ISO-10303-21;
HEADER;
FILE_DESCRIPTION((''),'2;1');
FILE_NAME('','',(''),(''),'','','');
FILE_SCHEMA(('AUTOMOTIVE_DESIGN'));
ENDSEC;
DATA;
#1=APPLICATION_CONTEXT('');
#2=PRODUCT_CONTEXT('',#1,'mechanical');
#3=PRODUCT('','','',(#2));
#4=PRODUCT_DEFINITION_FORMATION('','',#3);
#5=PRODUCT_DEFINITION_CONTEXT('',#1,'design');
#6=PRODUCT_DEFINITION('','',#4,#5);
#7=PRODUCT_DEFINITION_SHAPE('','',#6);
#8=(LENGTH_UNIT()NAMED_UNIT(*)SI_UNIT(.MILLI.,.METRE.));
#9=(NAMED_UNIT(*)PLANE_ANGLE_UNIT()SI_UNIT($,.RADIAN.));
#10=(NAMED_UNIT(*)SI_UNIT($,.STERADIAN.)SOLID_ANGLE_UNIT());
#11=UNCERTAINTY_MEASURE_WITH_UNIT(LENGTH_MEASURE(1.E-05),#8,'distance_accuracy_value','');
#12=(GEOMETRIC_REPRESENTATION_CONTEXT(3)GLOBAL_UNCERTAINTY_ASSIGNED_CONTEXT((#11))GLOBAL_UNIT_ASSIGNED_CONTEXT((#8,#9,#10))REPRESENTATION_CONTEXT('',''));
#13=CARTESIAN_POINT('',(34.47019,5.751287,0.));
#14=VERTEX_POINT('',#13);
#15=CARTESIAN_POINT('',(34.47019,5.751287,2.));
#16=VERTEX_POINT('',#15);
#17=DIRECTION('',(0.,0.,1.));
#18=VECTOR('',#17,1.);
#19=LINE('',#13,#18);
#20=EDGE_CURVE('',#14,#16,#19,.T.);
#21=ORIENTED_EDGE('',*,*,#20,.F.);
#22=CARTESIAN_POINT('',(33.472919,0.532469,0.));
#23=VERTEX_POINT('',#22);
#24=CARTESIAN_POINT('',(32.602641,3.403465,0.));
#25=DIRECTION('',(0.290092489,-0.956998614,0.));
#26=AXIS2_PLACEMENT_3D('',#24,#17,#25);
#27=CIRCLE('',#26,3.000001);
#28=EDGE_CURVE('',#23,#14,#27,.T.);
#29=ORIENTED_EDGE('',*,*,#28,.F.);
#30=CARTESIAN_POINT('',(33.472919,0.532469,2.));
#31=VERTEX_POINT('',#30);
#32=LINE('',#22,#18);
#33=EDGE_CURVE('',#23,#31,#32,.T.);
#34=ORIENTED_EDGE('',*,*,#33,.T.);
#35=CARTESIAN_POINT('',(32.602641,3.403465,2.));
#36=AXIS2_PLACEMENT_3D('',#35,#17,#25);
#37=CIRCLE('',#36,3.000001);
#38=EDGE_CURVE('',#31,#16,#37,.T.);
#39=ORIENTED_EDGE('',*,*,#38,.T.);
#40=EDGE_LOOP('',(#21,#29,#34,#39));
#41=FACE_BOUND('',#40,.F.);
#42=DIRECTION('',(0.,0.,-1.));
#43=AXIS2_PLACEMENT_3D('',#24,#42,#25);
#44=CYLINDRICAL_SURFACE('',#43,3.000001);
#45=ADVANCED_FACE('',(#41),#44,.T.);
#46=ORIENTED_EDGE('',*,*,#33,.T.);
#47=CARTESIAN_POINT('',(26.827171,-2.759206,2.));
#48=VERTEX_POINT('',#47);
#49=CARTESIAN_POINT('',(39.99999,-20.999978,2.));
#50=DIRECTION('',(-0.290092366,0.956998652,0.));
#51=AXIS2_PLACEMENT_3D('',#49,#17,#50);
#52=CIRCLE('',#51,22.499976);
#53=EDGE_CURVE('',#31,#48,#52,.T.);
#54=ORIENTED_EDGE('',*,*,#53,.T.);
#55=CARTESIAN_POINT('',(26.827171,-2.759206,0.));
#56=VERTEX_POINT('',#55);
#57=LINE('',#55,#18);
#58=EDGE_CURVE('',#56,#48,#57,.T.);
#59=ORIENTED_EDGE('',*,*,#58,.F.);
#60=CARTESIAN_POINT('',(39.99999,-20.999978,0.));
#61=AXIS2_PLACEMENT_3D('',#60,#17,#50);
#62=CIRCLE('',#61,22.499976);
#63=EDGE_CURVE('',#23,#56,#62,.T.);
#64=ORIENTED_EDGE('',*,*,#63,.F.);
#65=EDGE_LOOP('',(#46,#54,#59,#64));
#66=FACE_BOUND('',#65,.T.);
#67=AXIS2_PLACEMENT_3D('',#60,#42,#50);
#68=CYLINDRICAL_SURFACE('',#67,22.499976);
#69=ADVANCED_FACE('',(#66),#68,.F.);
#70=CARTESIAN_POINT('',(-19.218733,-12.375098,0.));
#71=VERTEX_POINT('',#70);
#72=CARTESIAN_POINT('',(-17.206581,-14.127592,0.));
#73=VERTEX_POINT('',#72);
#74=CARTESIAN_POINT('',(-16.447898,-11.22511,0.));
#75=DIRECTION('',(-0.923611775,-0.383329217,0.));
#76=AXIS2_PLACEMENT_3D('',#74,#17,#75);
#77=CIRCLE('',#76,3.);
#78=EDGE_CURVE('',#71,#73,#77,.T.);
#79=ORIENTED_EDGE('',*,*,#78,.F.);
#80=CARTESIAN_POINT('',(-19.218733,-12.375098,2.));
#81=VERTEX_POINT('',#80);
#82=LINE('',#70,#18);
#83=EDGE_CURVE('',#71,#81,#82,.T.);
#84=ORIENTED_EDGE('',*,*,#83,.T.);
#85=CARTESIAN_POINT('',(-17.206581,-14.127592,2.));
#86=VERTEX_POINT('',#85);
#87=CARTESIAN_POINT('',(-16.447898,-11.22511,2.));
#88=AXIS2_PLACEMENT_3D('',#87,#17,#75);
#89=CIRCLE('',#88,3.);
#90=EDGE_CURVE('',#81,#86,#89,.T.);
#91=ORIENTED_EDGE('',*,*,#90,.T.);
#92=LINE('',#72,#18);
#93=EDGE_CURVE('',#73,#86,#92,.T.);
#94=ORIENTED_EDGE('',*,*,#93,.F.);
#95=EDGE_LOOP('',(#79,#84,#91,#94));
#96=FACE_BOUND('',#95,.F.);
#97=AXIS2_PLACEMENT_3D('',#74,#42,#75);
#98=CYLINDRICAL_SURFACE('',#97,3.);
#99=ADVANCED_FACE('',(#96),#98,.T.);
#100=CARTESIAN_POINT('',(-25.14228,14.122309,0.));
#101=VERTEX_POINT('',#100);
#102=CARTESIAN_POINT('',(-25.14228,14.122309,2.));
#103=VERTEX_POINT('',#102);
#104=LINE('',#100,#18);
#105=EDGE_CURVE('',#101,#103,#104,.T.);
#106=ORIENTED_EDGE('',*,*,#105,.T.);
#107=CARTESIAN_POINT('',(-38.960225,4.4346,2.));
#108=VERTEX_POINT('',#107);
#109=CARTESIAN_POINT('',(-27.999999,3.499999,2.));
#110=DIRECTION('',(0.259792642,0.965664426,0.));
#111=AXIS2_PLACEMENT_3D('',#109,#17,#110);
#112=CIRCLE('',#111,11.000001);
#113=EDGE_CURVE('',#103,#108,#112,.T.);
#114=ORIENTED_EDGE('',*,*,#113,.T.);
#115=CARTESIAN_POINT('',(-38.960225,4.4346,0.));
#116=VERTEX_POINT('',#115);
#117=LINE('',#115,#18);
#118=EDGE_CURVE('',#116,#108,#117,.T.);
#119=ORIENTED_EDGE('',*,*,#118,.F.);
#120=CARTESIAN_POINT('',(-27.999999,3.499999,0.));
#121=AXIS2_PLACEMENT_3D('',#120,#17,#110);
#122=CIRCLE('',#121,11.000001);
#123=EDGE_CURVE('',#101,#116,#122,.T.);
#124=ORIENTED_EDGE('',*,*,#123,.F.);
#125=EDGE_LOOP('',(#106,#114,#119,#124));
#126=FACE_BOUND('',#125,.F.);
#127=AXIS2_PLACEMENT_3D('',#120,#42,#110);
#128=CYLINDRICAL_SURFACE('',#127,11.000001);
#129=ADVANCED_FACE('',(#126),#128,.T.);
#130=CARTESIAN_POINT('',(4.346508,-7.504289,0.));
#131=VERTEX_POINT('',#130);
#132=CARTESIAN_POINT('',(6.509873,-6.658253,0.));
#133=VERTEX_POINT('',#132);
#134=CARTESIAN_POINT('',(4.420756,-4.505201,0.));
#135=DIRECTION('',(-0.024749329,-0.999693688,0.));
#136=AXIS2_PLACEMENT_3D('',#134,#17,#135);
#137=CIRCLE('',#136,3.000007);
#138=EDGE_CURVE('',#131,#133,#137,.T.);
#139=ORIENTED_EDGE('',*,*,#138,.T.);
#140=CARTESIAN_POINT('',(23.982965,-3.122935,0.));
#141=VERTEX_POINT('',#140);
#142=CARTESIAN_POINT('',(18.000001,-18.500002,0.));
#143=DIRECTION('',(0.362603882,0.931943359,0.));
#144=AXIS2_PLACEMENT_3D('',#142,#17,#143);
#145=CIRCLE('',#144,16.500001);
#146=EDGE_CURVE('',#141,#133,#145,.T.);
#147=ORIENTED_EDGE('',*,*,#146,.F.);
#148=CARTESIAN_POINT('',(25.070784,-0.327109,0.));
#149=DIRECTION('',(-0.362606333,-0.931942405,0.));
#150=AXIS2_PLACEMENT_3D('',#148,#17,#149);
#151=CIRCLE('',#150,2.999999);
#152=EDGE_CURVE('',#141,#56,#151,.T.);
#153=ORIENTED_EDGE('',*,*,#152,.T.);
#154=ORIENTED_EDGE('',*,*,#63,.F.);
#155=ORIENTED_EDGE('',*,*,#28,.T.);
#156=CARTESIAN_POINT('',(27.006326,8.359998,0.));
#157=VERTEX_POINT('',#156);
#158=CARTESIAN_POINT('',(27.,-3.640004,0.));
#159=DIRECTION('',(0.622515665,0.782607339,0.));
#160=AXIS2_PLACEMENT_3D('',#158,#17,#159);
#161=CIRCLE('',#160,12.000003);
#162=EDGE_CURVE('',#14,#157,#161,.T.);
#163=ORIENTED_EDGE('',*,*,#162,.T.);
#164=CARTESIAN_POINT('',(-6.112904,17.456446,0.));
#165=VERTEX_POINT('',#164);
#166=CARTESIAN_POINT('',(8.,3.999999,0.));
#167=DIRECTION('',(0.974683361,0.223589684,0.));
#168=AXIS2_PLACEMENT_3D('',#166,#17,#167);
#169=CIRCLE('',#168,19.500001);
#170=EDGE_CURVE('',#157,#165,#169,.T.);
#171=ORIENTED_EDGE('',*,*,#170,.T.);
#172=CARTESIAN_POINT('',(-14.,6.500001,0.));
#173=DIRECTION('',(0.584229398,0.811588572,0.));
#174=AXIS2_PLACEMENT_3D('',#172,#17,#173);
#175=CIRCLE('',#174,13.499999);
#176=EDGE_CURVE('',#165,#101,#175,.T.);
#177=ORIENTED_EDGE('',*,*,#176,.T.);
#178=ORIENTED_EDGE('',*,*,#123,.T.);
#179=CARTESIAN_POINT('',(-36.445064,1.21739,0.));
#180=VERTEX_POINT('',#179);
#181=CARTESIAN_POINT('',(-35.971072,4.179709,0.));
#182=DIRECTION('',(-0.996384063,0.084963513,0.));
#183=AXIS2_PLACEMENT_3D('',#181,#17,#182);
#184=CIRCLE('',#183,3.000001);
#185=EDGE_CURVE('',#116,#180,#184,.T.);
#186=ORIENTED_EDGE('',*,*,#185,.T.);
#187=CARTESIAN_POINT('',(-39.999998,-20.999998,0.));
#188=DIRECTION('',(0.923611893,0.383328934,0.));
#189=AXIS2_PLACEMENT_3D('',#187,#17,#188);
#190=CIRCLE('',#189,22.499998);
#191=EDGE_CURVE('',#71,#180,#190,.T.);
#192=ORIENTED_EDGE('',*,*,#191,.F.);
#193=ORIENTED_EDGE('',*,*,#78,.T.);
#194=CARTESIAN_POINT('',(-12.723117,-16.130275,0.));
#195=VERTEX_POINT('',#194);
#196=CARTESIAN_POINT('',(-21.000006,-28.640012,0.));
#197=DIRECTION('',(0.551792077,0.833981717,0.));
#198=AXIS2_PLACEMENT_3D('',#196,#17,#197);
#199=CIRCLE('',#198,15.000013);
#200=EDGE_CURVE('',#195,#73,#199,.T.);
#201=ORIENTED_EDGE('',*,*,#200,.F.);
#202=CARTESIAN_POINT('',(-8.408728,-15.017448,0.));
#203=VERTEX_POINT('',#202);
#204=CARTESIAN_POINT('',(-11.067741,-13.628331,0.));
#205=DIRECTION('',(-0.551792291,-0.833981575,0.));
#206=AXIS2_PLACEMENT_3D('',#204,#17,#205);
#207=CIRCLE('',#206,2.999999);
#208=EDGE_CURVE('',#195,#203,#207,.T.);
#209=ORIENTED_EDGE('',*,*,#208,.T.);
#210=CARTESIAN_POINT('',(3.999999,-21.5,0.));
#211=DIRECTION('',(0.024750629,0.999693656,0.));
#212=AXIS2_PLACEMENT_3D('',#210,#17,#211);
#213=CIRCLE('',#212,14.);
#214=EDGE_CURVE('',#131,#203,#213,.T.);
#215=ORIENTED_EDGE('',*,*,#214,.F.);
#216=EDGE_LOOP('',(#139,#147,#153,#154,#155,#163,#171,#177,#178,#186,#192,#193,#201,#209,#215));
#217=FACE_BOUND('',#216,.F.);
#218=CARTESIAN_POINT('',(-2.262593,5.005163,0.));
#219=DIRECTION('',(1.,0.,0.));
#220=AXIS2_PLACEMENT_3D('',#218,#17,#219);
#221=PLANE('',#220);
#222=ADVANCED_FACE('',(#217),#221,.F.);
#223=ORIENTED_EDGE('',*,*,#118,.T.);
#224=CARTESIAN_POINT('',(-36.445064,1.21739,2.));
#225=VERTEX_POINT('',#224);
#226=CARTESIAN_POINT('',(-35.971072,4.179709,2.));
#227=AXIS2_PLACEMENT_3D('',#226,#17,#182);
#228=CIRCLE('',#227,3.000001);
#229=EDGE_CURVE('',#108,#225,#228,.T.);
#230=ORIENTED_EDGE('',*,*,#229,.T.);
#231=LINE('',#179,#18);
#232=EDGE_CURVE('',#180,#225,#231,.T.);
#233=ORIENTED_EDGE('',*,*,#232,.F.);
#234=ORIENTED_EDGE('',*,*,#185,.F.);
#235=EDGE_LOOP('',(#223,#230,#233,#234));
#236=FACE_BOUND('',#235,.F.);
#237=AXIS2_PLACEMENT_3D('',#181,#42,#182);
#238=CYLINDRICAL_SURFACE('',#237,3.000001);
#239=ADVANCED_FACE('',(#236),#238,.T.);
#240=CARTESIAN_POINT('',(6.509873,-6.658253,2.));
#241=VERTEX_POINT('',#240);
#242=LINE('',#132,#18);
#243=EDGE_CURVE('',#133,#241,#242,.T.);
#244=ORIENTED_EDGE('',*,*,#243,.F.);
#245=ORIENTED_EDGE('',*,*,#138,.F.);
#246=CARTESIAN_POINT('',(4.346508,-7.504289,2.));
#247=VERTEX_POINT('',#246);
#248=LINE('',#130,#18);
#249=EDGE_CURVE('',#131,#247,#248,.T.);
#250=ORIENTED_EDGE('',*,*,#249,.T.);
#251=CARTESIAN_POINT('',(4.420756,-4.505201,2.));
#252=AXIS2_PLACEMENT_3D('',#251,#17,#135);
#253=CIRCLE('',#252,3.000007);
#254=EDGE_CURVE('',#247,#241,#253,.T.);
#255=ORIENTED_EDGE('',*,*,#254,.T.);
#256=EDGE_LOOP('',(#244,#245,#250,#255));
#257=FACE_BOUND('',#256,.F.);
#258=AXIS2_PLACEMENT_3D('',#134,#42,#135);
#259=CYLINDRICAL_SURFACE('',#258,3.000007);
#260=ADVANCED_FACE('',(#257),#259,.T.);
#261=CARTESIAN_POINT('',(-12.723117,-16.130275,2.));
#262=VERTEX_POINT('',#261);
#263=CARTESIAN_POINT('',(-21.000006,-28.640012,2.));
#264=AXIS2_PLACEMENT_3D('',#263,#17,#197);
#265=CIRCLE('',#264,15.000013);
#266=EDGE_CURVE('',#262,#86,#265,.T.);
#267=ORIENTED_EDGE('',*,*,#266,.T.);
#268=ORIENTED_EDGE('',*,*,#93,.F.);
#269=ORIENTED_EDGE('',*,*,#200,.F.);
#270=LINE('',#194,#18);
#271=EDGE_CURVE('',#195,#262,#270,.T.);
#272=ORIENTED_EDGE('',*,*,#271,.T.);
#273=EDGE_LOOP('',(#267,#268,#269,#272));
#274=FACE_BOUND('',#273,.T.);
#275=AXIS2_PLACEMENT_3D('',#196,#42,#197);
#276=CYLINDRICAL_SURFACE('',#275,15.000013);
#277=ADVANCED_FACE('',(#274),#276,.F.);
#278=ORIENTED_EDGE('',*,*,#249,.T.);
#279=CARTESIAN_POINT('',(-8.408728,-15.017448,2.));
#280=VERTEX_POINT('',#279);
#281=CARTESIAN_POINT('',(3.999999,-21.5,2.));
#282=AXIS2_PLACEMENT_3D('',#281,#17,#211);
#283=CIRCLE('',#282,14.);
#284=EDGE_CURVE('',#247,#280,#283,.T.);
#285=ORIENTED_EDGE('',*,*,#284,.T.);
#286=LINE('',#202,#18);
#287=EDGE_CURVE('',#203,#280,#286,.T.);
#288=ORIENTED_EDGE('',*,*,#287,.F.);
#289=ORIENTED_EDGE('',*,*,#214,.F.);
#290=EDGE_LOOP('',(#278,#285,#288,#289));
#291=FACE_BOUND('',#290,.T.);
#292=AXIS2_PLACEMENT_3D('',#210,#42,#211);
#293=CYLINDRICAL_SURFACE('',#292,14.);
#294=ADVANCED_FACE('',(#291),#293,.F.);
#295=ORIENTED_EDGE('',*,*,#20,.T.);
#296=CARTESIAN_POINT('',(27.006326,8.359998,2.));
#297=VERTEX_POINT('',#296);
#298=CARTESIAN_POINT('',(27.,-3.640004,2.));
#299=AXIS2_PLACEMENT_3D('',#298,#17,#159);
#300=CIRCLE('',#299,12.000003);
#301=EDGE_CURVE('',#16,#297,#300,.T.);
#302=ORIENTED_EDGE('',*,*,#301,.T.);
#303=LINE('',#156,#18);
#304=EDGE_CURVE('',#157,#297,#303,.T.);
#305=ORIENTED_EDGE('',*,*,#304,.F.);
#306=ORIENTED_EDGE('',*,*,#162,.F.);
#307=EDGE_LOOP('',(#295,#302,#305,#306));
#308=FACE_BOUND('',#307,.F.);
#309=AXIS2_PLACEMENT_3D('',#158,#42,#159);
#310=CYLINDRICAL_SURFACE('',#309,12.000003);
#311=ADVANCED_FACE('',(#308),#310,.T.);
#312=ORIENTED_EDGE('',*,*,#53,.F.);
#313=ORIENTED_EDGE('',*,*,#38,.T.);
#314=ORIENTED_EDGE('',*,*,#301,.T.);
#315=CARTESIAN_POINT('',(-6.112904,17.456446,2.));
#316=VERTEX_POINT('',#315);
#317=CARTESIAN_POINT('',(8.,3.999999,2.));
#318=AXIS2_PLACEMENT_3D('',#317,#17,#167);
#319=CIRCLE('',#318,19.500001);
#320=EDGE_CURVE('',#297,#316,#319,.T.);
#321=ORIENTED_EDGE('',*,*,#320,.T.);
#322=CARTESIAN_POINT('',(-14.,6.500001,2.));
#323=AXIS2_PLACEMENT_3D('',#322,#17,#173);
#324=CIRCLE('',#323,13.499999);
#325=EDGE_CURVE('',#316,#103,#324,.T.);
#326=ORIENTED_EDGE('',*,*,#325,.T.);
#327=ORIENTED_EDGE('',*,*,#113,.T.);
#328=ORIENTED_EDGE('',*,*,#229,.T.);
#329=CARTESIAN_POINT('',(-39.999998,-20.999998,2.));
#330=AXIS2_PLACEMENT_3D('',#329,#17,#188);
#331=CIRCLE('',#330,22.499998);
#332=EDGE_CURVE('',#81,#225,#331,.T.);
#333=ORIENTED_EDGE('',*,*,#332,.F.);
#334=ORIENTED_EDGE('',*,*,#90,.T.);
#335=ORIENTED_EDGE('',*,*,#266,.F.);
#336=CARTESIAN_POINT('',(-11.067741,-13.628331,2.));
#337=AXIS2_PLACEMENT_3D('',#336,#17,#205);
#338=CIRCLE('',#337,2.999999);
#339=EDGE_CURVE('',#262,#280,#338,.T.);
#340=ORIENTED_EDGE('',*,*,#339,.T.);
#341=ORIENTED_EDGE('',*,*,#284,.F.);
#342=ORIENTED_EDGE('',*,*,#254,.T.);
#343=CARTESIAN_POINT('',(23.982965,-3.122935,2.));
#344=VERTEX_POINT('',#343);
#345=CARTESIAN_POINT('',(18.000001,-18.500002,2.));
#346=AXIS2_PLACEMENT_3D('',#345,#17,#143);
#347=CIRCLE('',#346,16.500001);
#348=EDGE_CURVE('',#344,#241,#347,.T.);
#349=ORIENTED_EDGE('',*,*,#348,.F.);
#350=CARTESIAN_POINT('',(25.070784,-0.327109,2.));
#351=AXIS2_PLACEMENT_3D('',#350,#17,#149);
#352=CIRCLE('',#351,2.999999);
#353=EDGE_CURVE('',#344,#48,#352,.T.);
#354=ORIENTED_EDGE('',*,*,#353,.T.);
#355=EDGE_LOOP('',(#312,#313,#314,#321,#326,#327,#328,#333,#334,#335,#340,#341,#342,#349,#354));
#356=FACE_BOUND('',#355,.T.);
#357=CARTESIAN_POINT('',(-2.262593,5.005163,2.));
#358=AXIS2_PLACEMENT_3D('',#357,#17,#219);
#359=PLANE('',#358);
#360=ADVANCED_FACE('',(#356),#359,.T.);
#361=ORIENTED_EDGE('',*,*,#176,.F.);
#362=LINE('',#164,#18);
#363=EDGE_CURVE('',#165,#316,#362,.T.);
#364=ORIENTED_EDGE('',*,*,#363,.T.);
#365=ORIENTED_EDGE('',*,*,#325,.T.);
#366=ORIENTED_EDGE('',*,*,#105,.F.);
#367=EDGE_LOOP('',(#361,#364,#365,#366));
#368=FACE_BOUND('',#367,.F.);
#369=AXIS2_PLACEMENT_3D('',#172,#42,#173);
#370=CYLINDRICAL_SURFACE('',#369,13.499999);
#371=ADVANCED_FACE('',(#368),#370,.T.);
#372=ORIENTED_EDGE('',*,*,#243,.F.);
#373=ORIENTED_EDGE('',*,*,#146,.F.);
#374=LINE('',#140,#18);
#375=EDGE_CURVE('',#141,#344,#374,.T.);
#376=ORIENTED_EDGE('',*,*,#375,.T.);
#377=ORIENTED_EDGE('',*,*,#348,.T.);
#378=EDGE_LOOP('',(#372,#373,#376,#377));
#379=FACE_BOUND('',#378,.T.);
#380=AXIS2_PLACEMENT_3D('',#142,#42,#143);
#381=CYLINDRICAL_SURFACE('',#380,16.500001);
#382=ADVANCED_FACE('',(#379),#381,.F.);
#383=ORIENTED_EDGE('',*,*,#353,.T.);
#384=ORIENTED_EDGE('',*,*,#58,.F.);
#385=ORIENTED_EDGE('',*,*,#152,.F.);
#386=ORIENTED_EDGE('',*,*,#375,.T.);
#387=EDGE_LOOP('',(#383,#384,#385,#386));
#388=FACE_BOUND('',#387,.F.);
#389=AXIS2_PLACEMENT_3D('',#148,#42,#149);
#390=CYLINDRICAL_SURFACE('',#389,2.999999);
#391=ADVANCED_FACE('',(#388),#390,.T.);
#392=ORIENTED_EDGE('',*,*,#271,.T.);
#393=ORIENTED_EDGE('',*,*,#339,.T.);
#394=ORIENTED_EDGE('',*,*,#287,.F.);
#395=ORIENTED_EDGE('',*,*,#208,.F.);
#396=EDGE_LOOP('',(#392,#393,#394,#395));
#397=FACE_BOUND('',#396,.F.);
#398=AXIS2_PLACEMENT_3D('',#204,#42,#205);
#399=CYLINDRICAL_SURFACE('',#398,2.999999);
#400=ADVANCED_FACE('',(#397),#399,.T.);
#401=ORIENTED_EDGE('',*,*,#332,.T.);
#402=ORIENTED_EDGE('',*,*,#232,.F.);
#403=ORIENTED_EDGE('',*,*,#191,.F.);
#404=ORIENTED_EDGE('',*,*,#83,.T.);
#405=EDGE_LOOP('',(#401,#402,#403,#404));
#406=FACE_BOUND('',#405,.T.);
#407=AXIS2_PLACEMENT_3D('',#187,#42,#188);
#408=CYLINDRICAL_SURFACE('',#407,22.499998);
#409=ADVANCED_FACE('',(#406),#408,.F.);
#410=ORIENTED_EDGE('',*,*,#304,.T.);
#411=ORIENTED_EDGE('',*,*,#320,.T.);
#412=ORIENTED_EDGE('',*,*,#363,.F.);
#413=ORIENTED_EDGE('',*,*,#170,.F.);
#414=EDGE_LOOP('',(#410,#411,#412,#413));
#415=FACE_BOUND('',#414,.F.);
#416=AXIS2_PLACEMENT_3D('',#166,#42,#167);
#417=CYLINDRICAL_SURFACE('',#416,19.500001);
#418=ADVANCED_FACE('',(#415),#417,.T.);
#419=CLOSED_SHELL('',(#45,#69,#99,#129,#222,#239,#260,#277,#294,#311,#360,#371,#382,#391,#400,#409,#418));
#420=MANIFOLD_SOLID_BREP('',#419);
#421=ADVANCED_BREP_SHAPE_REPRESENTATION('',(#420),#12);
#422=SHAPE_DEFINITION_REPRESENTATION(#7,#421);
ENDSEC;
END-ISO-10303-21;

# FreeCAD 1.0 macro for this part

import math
import FreeCAD as App
import Part
import Sketcher

doc = App.newDocument("Part")
body = doc.addObject("PartDesign::Body", "Body")

# Sketch on XY plane
sketch1 = body.newObject("Sketcher::SketchObject", "Sketch")
sketch1.AttachmentSupport = (doc.getObject("XY_Plane"), [""])
sketch1.MapMode = "FlatFace"
sketch1.addGeometry([
    Part.ArcOfCircle(Part.Circle(App.Vector(-28, 3.5, 0), App.Vector(0, 0, 1), 11), math.radians(75), math.radians(175)),  # 0
    Part.ArcOfCircle(Part.Circle(App.Vector(-36, 4.2, 0), App.Vector(0, 0, 1), 3), math.radians(175), math.radians(261)),  # 1
    Part.ArcOfCircle(Part.Circle(App.Vector(-40, -21, 0), App.Vector(0, 0, 1), 22.5), math.radians(23), math.radians(81)),  # 2
    Part.ArcOfCircle(Part.Circle(App.Vector(-16.4, -11.2, 0), App.Vector(0, 0, 1), 3), math.radians(-157), math.radians(-105)),  # 3
    Part.ArcOfCircle(Part.Circle(App.Vector(-21, -28.6, 0), App.Vector(0, 0, 1), 15), math.radians(56.51), math.radians(75.35)),  # 4
    Part.ArcOfCircle(Part.Circle(App.Vector(-11.1, -13.6, 0), App.Vector(0, 0, 1), 3), math.radians(-123), math.radians(-28)),  # 5
    Part.ArcOfCircle(Part.Circle(App.Vector(4, -21.5, 0), App.Vector(0, 0, 1), 14), math.radians(89), math.radians(152)),  # 6
    Part.ArcOfCircle(Part.Circle(App.Vector(4.4, -4.5, 0), App.Vector(0, 0, 1), 3), math.radians(-91), math.radians(-46)),  # 7
    Part.ArcOfCircle(Part.Circle(App.Vector(18, -18.5, 0), App.Vector(0, 0, 1), 16.5), math.radians(69), math.radians(134)),  # 8
    Part.ArcOfCircle(Part.Circle(App.Vector(25.1, -0.3, 0), App.Vector(0, 0, 1), 3), math.radians(-111), math.radians(-54)),  # 9
    Part.ArcOfCircle(Part.Circle(App.Vector(40, -21, 0), App.Vector(0, 0, 1), 22.5), math.radians(106.86), math.radians(125.84)),  # 10
    Part.ArcOfCircle(Part.Circle(App.Vector(32.6, 3.4, 0), App.Vector(0, 0, 1), 3), math.radians(-73), math.radians(51)),  # 11
    Part.ArcOfCircle(Part.Circle(App.Vector(27, -3.6, 0), App.Vector(0, 0, 1), 12), math.radians(51), math.radians(90)),  # 12
    Part.ArcOfCircle(Part.Circle(App.Vector(8, 4, 0), App.Vector(0, 0, 1), 19.5), math.radians(13), math.radians(136)),  # 13
    Part.ArcOfCircle(Part.Circle(App.Vector(-14, 6.5, 0), App.Vector(0, 0, 1), 13.5), math.radians(54), math.radians(146)),  # 14
], False)
sketch1.addConstraint([
    Sketcher.Constraint("Tangent", 0, 2, 1, 1),
    Sketcher.Constraint("Tangent", 1, 2, 2, 2),
    Sketcher.Constraint("Tangent", 2, 1, 3, 1),
    Sketcher.Constraint("Tangent", 3, 2, 4, 2),
    Sketcher.Constraint("Tangent", 4, 1, 5, 1),
    Sketcher.Constraint("Tangent", 5, 2, 6, 2),
    Sketcher.Constraint("Tangent", 6, 1, 7, 1),
    Sketcher.Constraint("Tangent", 7, 2, 8, 2),
    Sketcher.Constraint("Coincident", 8, 1, 9, 1),
    Sketcher.Constraint("Coincident", 9, 2, 10, 2),
    Sketcher.Constraint("Tangent", 10, 1, 11, 1),
    Sketcher.Constraint("Tangent", 11, 2, 12, 1),
    Sketcher.Constraint("Coincident", 12, 2, 13, 1),
    Sketcher.Constraint("Coincident", 13, 2, 14, 1),
    Sketcher.Constraint("Coincident", 14, 2, 0, 1),
    Sketcher.Constraint("Equal", 1, 3),
    Sketcher.Constraint("Equal", 3, 5),
    Sketcher.Constraint("Equal", 5, 9),
    Sketcher.Constraint("Equal", 9, 11),
    Sketcher.Constraint("Radius", 0, 11.000001),
    Sketcher.Constraint("Radius", 1, 3.000001),
    Sketcher.Constraint("Radius", 6, 14.0),
    Sketcher.Constraint("Radius", 8, 16.500001),
    Sketcher.Constraint("Radius", 13, 19.500001),
    Sketcher.Constraint("Radius", 14, 13.499999),
    Sketcher.Constraint("DistanceX", 0, 3, -1, 1, 27.999999),
    Sketcher.Constraint("DistanceX", 2, 3, -1, 1, 39.999998),
    Sketcher.Constraint("DistanceY", 2, 3, -1, 1, 20.999998),
    Sketcher.Constraint("DistanceX", -1, 1, 6, 3, 3.999999),
    Sketcher.Constraint("DistanceX", -1, 1, 8, 3, 18.000001),
    Sketcher.Constraint("DistanceX", -1, 1, 12, 3, 27.0),
    Sketcher.Constraint("DistanceX", -1, 1, 13, 3, 8.0),
    Sketcher.Constraint("DistanceY", -1, 1, 13, 3, 3.999999),
    Sketcher.Constraint("DistanceX", 14, 3, -1, 1, 14.0),
    Sketcher.Constraint("DistanceY", 6, 3, 0, 3, 24.999999),
    Sketcher.Constraint("DistanceY", 6, 3, 8, 3, 2.999998),
    Sketcher.Constraint("DistanceY", 0, 3, 14, 3, 3.000002),
    Sketcher.Constraint("DistanceY", -1, 1, 0, 3, 3.499999),
    Sketcher.Constraint("DistanceY", -1, 1, 12, 2, 8.359998),
    Sketcher.Constraint("Radius", 2, 22.499998),
    Sketcher.Constraint("Radius", 4, 15.000013),
    Sketcher.Constraint("Radius", 7, 3.000007),
    Sketcher.Constraint("Radius", 10, 22.499976),
    Sketcher.Constraint("Radius", 12, 12.000003),
    Sketcher.Constraint("DistanceY", 3, 3, 9, 3, 10.898002),
    Sketcher.Constraint("DistanceX", 0, 3, 3, 3, 11.552102),
    Sketcher.Constraint("DistanceY", 4, 3, 3, 3, 17.414902),
    Sketcher.Constraint("DistanceY", 8, 1, 11, 3, 6.5264),
    Sketcher.Constraint("DistanceX", -1, 1, 10, 3, 39.99999),
    Sketcher.Constraint("DistanceX", -1, 1, 9, 2, 26.827171),
])
pad1 = body.newObject("PartDesign::Pad", "Pad")
pad1.Profile = sketch1
pad1.Length = 2

doc.recompute()
